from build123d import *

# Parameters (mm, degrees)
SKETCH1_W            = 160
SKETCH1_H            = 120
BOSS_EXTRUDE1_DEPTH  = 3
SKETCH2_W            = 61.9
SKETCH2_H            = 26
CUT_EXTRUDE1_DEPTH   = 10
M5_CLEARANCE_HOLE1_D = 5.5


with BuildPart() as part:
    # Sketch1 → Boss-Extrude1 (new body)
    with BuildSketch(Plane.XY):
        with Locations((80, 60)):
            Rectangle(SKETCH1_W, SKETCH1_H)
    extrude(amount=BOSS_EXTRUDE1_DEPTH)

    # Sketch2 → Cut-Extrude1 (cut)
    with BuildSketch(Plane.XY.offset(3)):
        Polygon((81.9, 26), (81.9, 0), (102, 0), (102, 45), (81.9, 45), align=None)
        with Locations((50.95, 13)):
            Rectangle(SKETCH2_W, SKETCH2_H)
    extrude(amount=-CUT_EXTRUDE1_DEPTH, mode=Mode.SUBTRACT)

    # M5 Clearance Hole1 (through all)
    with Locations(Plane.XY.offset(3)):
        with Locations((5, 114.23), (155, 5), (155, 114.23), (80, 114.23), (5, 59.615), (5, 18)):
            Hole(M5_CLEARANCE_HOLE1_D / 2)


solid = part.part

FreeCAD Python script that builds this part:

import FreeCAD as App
import Part
import Sketcher
from FreeCAD import Vector


def add_polygon(sketch, points):
    """Adds a closed chain of lines whose ends are joined by coincident constraints."""
    first, n = sketch.GeometryCount, len(points)
    for a, b in zip(points, points[1:] + points[:1]):
        sketch.addGeometry(Part.LineSegment(App.Vector(*a, 0), App.Vector(*b, 0)), False)
    for i in range(n):
        sketch.addConstraint(Sketcher.Constraint("Coincident", first + i, 2, first + (i + 1) % n, 1))

doc = App.newDocument("Part")
body = doc.addObject("PartDesign::Body", "Body")

sketch1 = body.newObject("Sketcher::SketchObject", "Sketch")
sketch1.AttachmentSupport = (doc.getObject("XY_Plane"), [""])
sketch1.MapMode = "FlatFace"
add_polygon(sketch1, [(0, 120), (0, 0), (160, 0), (160, 120)])
sketch1.addConstraint([
    Sketcher.Constraint("Vertical", 0),
    Sketcher.Constraint("Horizontal", 1),
    Sketcher.Constraint("Vertical", 2),
    Sketcher.Constraint("Horizontal", 3),
    Sketcher.Constraint("Coincident", 0, 2, -1, 1),
    Sketcher.Constraint("DistanceX", 1, 1, 1, 2, 160.0),
    Sketcher.Constraint("DistanceY", 0, 2, 0, 1, 120.0),
])
pad1 = body.newObject("PartDesign::Pad", "Pad")
pad1.Profile = sketch1
pad1.Length = 3

sketch2 = body.newObject("Sketcher::SketchObject", "Sketch001")
sketch2.AttachmentSupport = (doc.getObject("XY_Plane"), [""])
sketch2.MapMode = "FlatFace"
sketch2.AttachmentOffset = App.Placement(Vector(0, 0, 3), App.Rotation())
add_polygon(sketch2, [(102, 0), (102, 45), (82, 45), (82, 26), (20, 26), (20, 0)])
sketch2.addConstraint([
    Sketcher.Constraint("Vertical", 0),
    Sketcher.Constraint("Horizontal", 1),
    Sketcher.Constraint("Vertical", 2),
    Sketcher.Constraint("Horizontal", 3),
    Sketcher.Constraint("Vertical", 4),
    Sketcher.Constraint("Horizontal", 5),
    Sketcher.Constraint("PointOnObject", 4, 2, -1),
    Sketcher.Constraint("DistanceX", 5, 1, 5, 2, 82.0),
    Sketcher.Constraint("DistanceY", 0, 1, 0, 2, 45.0),
    Sketcher.Constraint("DistanceY", 2, 2, 2, 1, 19.0),
    Sketcher.Constraint("DistanceX", 1, 2, 1, 1, 20.1),
    Sketcher.Constraint("DistanceX", -1, 1, 0, 2, 102.0),
])
pocket1 = body.newObject("PartDesign::Pocket", "Pocket")
pocket1.Profile = sketch2
pocket1.Length = 10

sketch3 = body.newObject("Sketcher::SketchObject", "Sketch002")
sketch3.AttachmentSupport = (doc.getObject("XY_Plane"), [""])
sketch3.MapMode = "FlatFace"
sketch3.AttachmentOffset = App.Placement(Vector(0, 0, 3), App.Rotation())
sketch3.addGeometry([
    Part.Circle(Vector(5, 114.2, 0), Vector(0, 0, 1), 2.8),
    Part.Circle(Vector(155, 5, 0), Vector(0, 0, 1), 2.8),
    Part.Circle(Vector(155, 114.2, 0), Vector(0, 0, 1), 2.8),
    Part.Circle(Vector(80, 114.2, 0), Vector(0, 0, 1), 2.8),
    Part.Circle(Vector(5, 59.6, 0), Vector(0, 0, 1), 2.8),
    Part.Circle(Vector(5, 18, 0), Vector(0, 0, 1), 2.8),
], False)
sketch3.addConstraint([
    Sketcher.Constraint("Equal", 0, 1),
    Sketcher.Constraint("Equal", 1, 2),
    Sketcher.Constraint("Equal", 2, 3),
    Sketcher.Constraint("Equal", 3, 4),
    Sketcher.Constraint("Equal", 4, 5),
    Sketcher.Constraint("Horizontal", 0, 3, 2, 3),
    Sketcher.Constraint("Horizontal", 2, 3, 3, 3),
    Sketcher.Constraint("Vertical", 1, 3, 2, 3),
    Sketcher.Constraint("Vertical", 0, 3, 4, 3),
    Sketcher.Constraint("Vertical", 4, 3, 5, 3),
    Sketcher.Constraint("Diameter", 0, 5.5),
    Sketcher.Constraint("DistanceX", -1, 1, 0, 3, 5.0),
    Sketcher.Constraint("DistanceX", -1, 1, 1, 3, 155.0),
    Sketcher.Constraint("DistanceY", -1, 1, 1, 3, 5.0),
    Sketcher.Constraint("DistanceX", -1, 1, 3, 3, 80.0),
    Sketcher.Constraint("DistanceY", -1, 1, 5, 3, 18.0),
    Sketcher.Constraint("DistanceY", -1, 1, 0, 3, 114.23),
    Sketcher.Constraint("DistanceY", -1, 1, 4, 3, 59.615),
])
doc.recompute()
hole = body.newObject("PartDesign::Hole", "Hole")
hole.Profile = sketch3
hole.ThreadType = "None"
hole.Diameter = 5.5
hole.DepthType = "ThroughAll"

doc.recompute()
